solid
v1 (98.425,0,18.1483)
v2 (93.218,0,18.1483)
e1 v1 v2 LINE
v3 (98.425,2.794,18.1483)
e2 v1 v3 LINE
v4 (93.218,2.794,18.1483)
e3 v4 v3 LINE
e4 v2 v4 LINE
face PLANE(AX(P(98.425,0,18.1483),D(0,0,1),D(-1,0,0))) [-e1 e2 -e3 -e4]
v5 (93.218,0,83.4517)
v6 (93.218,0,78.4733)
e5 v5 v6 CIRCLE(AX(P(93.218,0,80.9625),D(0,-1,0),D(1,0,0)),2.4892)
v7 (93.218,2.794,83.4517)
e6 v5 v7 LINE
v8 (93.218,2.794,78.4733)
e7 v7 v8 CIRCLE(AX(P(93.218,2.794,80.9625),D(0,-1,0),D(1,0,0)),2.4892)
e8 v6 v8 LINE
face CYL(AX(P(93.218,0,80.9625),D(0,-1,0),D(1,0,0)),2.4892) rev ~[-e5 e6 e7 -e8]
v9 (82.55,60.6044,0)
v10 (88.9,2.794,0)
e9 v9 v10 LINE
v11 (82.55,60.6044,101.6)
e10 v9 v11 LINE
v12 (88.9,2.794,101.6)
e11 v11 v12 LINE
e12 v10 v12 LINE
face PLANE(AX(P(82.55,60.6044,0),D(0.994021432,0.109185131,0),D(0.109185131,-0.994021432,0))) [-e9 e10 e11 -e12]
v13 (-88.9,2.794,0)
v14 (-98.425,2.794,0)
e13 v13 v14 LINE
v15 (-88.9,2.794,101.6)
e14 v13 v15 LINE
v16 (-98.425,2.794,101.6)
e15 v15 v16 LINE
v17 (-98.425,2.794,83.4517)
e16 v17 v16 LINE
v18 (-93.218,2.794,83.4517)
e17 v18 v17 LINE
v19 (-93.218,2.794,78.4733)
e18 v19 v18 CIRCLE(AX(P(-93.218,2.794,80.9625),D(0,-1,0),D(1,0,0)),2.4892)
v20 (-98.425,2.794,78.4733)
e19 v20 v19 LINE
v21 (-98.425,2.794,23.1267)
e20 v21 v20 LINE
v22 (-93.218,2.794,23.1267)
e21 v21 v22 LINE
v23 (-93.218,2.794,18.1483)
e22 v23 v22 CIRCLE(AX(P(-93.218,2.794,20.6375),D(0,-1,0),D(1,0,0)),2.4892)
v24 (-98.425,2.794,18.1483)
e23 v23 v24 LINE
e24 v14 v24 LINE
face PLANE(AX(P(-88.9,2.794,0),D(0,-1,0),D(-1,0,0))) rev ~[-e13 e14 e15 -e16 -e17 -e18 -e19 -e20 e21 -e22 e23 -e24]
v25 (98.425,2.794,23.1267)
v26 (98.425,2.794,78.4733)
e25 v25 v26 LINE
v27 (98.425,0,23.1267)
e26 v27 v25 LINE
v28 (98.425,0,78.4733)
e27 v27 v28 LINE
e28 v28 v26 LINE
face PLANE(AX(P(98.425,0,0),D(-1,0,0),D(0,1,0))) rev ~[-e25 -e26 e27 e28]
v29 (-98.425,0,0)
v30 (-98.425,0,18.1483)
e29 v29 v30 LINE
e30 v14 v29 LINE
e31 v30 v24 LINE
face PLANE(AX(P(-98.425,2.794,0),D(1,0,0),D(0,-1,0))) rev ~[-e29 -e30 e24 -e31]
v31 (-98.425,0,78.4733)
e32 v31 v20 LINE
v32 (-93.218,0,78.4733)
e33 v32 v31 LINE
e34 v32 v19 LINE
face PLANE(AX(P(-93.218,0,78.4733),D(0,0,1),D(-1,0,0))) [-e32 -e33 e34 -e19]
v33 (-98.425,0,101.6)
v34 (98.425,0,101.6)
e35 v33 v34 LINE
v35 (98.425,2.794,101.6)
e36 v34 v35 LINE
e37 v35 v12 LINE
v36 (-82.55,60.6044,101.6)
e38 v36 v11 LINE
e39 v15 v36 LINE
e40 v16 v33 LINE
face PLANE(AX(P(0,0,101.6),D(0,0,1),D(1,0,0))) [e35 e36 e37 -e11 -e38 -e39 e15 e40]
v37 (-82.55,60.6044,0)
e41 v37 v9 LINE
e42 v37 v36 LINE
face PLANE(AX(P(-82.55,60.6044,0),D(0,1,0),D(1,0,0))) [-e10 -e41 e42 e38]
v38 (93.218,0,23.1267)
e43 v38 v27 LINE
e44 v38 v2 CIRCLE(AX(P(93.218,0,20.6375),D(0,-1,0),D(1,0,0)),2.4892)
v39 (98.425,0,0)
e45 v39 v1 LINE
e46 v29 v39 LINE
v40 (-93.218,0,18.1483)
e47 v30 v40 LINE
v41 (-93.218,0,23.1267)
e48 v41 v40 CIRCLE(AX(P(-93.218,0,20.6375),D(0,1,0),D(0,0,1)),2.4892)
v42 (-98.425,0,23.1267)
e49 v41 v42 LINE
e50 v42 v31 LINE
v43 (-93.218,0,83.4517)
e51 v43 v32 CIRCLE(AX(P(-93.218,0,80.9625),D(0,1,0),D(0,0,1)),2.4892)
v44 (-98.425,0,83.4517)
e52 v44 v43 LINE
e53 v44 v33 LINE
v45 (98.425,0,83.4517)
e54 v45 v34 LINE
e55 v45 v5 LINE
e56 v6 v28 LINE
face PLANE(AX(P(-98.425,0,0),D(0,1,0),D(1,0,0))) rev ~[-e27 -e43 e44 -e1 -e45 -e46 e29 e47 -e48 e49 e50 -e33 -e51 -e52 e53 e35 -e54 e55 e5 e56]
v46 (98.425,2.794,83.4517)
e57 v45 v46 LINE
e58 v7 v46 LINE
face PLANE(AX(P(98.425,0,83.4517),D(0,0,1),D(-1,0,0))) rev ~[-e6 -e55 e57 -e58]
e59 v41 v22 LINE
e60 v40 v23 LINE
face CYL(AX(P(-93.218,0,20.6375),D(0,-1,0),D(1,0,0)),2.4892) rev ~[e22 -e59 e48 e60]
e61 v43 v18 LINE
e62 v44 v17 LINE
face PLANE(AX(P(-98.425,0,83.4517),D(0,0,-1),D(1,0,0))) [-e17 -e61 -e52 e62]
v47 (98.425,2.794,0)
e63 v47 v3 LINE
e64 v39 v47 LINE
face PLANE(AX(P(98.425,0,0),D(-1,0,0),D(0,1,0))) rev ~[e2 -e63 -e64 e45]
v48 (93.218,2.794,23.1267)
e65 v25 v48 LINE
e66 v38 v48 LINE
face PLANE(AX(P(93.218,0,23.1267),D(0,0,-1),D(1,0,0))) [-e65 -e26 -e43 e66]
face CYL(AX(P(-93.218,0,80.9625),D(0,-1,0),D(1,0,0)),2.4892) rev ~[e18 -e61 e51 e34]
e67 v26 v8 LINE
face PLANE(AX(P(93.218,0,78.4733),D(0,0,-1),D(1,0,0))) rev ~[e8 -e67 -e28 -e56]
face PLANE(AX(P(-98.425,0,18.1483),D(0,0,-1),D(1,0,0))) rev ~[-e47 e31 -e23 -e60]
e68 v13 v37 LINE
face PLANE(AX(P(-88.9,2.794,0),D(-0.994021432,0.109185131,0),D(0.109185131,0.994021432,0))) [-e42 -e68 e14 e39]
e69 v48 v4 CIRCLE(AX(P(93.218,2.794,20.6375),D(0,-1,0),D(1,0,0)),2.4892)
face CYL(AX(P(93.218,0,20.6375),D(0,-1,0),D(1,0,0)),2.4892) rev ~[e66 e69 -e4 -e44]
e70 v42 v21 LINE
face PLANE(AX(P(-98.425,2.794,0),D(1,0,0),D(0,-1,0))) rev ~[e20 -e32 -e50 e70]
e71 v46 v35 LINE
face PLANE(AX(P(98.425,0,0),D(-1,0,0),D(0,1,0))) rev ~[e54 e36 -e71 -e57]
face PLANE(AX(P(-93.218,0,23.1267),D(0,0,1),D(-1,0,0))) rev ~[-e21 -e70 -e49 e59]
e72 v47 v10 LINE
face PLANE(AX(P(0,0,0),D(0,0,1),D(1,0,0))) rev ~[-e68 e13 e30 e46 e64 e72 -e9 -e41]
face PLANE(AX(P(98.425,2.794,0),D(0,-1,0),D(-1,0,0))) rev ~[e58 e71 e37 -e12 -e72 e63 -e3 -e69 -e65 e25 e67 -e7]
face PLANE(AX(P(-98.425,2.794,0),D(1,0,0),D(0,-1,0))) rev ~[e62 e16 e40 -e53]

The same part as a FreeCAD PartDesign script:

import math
import FreeCAD as App
import Part
import Sketcher
from FreeCAD import Vector
Q = App.Units.Quantity


def add_polygon(sketch, points):
    """Adds a closed chain of lines whose ends are joined by coincident constraints."""
    first, n = sketch.GeometryCount, len(points)
    for a, b in zip(points, points[1:] + points[:1]):
        sketch.addGeometry(Part.LineSegment(App.Vector(*a, 0), App.Vector(*b, 0)), False)
    for i in range(n):
        sketch.addConstraint(Sketcher.Constraint("Coincident", first + i, 2, first + (i + 1) % n, 1))

doc = App.newDocument("Part")
body = doc.addObject("PartDesign::Body", "Body")

# Sketch on XY plane
sketch1 = body.newObject("Sketcher::SketchObject", "Sketch")
sketch1.AttachmentSupport = (doc.getObject("XY_Plane"), [""])
sketch1.MapMode = "FlatFace"
add_polygon(sketch1, [(-98.4, 2.8), (-98.4, 0), (98.4, 0), (98.4, 2.8), (88.9, 2.8), (82.5, 60.6), (-82.5, 60.6), (-88.9, 2.8)])  # lines 0-7
sketch1.addConstraint([
    Sketcher.Constraint("Vertical", 0),
    Sketcher.Constraint("Horizontal", 1),
    Sketcher.Constraint("Vertical", 2),
    Sketcher.Constraint("Horizontal", 3),
    Sketcher.Constraint("Horizontal", 5),
    Sketcher.Constraint("Horizontal", 7),
    Sketcher.Constraint("Symmetric", 0, 2, 1, 2, -1, 1),
    Sketcher.Constraint("Symmetric", 3, 2, 6, 2, -2),
    Sketcher.Constraint("Equal", 4, 6),
    Sketcher.Constraint("DistanceX", 5, 2, 5, 1, Q("6.5 in")),
    Sketcher.Constraint("DistanceX", 6, 2, 3, 2, Q("7 in")),
    Sketcher.Constraint("DistanceX", 1, 1, 1, 2, Q("7.75 in")),
    Sketcher.Constraint("DistanceY", 0, 2, 0, 1, Q("0.11 in")),
    Sketcher.Constraint("DistanceY", -1, 1, 4, 2, Q("2.386 in")),
])
pad1 = body.newObject("PartDesign::Pad", "Pad")
pad1.Profile = sketch1
pad1.Length = Q("4 in")

# Sketch on XZ plane
sketch2 = body.newObject("Sketcher::SketchObject", "Sketch001")
sketch2.AttachmentSupport = (doc.getObject("XZ_Plane"), [""])
sketch2.MapMode = "FlatFace"
sketch2.addGeometry([
    Part.LineSegment(Vector(98.4, 18.1, 0), Vector(98.4, 23.1, 0)),  # 0
    Part.LineSegment(Vector(98.4, 23.1, 0), Vector(93.2, 23.1, 0)),  # 1
    Part.ArcOfCircle(Part.Circle(Vector(93.2, 20.6, 0), Vector(0, 0, 1), 2.5), math.radians(90), math.radians(270)),  # 2
    Part.LineSegment(Vector(93.2, 18.1, 0), Vector(98.4, 18.1, 0)),  # 3
    Part.LineSegment(Vector(-93.2, 23.1, 0), Vector(-98.4, 23.1, 0)),  # 4
    Part.LineSegment(Vector(-98.4, 23.1, 0), Vector(-98.4, 18.1, 0)),  # 5
    Part.LineSegment(Vector(-98.4, 18.1, 0), Vector(-93.2, 18.1, 0)),  # 6
    Part.ArcOfCircle(Part.Circle(Vector(-93.2, 20.6, 0), Vector(0, 0, 1), 2.5), math.radians(-90), math.radians(90)),  # 7
    Part.LineSegment(Vector(98.4, 78.5, 0), Vector(98.4, 83.5, 0)),  # 8
    Part.LineSegment(Vector(98.4, 83.5, 0), Vector(93.2, 83.5, 0)),  # 9
    Part.ArcOfCircle(Part.Circle(Vector(93.2, 81, 0), Vector(0, 0, 1), 2.5), math.radians(90), math.radians(270)),  # 10
    Part.LineSegment(Vector(93.2, 78.5, 0), Vector(98.4, 78.5, 0)),  # 11
    Part.LineSegment(Vector(-93.2, 83.5, 0), Vector(-98.4, 83.5, 0)),  # 12
    Part.LineSegment(Vector(-98.4, 83.5, 0), Vector(-98.4, 78.5, 0)),  # 13
    Part.LineSegment(Vector(-98.4, 78.5, 0), Vector(-93.2, 78.5, 0)),  # 14
    Part.ArcOfCircle(Part.Circle(Vector(-93.2, 81, 0), Vector(0, 0, 1), 2.5), math.radians(-90), math.radians(90)),  # 15
], False)
sketch2.addConstraint([
    Sketcher.Constraint("Coincident", 0, 2, 1, 1),
    Sketcher.Constraint("Tangent", 1, 2, 2, 1),
    Sketcher.Constraint("Tangent", 2, 2, 3, 1),
    Sketcher.Constraint("Coincident", 3, 2, 0, 1),
    Sketcher.Constraint("Coincident", 4, 2, 5, 1),
    Sketcher.Constraint("Coincident", 5, 2, 6, 1),
    Sketcher.Constraint("Tangent", 6, 2, 7, 1),
    Sketcher.Constraint("Tangent", 7, 2, 4, 1),
    Sketcher.Constraint("Coincident", 8, 2, 9, 1),
    Sketcher.Constraint("Tangent", 9, 2, 10, 1),
    Sketcher.Constraint("Tangent", 10, 2, 11, 1),
    Sketcher.Constraint("Coincident", 11, 2, 8, 1),
    Sketcher.Constraint("Coincident", 12, 2, 13, 1),
    Sketcher.Constraint("Coincident", 13, 2, 14, 1),
    Sketcher.Constraint("Tangent", 14, 2, 15, 1),
    Sketcher.Constraint("Tangent", 15, 2, 12, 1),
    Sketcher.Constraint("Vertical", 0),
    Sketcher.Constraint("Horizontal", 1),
    Sketcher.Constraint("Horizontal", 3),
    Sketcher.Constraint("Horizontal", 4),
    Sketcher.Constraint("Vertical", 5),
    Sketcher.Constraint("Horizontal", 6),
    Sketcher.Constraint("Vertical", 8),
    Sketcher.Constraint("Horizontal", 9),
    Sketcher.Constraint("Horizontal", 11),
    Sketcher.Constraint("Horizontal", 12),
    Sketcher.Constraint("Vertical", 13),
    Sketcher.Constraint("Horizontal", 14),
    Sketcher.Constraint("Equal", 2, 7),
    Sketcher.Constraint("Equal", 7, 10),
    Sketcher.Constraint("Equal", 10, 15),
    Sketcher.Constraint("Symmetric", 2, 3, 7, 3, -2),
    Sketcher.Constraint("Symmetric", 10, 3, 15, 3, -2),
    Sketcher.Constraint("Vertical", 2, 3, 10, 3),
    Sketcher.Constraint("Vertical", 3, 2, 8, 2),
    Sketcher.Constraint("Vertical", 5, 2, 12, 2),
    Sketcher.Constraint("Equal", 3, 4),
    Sketcher.Constraint("Radius", 2, Q("0.098 in")),
    Sketcher.Constraint("DistanceX", 1, 2, 1, 1, Q("0.205 in")),
    Sketcher.Constraint("DistanceX", -1, 1, 2, 3, Q("3.67 in")),
    Sketcher.Constraint("DistanceY", -1, 1, 2, 3, Q("0.8125 in")),
    Sketcher.Constraint("DistanceY", -1, 1, 10, 3, Q("3.1875 in")),
])
pocket1 = body.newObject("PartDesign::Pocket", "Pocket")
pocket1.Profile = sketch2
pocket1.Type = "UpToFirst"

doc.recompute()
